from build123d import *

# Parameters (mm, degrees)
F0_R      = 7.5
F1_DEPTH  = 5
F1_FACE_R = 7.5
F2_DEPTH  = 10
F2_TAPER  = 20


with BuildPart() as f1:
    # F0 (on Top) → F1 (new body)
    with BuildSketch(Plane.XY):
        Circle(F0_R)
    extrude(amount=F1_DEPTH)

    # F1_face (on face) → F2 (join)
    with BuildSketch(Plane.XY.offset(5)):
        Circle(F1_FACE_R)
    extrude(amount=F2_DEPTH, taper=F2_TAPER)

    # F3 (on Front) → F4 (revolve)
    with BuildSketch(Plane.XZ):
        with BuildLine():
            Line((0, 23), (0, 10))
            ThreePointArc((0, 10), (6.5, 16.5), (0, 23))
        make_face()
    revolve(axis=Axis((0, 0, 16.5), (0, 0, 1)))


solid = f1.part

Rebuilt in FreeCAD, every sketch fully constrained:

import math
import FreeCAD as App
import Part
import Sketcher
from FreeCAD import Vector

doc = App.newDocument("Part")
body = doc.addObject("PartDesign::Body", "Body")

# Sketch on XY plane
sketch1 = body.newObject("Sketcher::SketchObject", "Sketch")
sketch1.AttachmentSupport = (doc.getObject("XY_Plane"), [""])
sketch1.MapMode = "FlatFace"
sketch1.addGeometry(Part.Circle(Vector(0, 0, 0), Vector(0, 0, 1), 8), False)
sketch1.addConstraint([
    Sketcher.Constraint("Coincident", 0, 3, -1, 1),
    Sketcher.Constraint("Diameter", 0, 15.0),
])
pad1 = body.newObject("PartDesign::Pad", "Pad")
pad1.Profile = sketch1
pad1.Length = 5

# Sketch on XY plane
sketch2 = body.newObject("Sketcher::SketchObject", "Sketch001")
sketch2.AttachmentSupport = (doc.getObject("XY_Plane"), [""])
sketch2.MapMode = "FlatFace"
sketch2.AttachmentOffset = App.Placement(Vector(0, 0, 5), App.Rotation())
sketch2.addGeometry(Part.Circle(Vector(0, 0, 0), Vector(0, 0, 1), 8), False)
sketch2.addConstraint([
    Sketcher.Constraint("Coincident", 0, 3, -1, 1),
    Sketcher.Constraint("Diameter", 0, 15.0),
])
pad2 = body.newObject("PartDesign::Pad", "Pad001")
pad2.Profile = sketch2
pad2.Length = 10
pad2.TaperAngle = -20

# Sketch on XZ plane
sketch3 = body.newObject("Sketcher::SketchObject", "Sketch002")
sketch3.AttachmentSupport = (doc.getObject("XZ_Plane"), [""])
sketch3.MapMode = "FlatFace"
sketch3.addGeometry([
    Part.LineSegment(Vector(0, 23, 0), Vector(0, 10, 0)),
    Part.ArcOfCircle(Part.Circle(Vector(0, 16, 0), Vector(0, 0, 1), 6), math.radians(-90), math.radians(90)),
], False)
sketch3.addConstraint([
    Sketcher.Constraint("Coincident", 0, 1, 1, 2),
    Sketcher.Constraint("Coincident", 1, 1, 0, 2),
    Sketcher.Constraint("Vertical", 0),
    Sketcher.Constraint("PointOnObject", 1, 3, -2),
    Sketcher.Constraint("PointOnObject", 0, 1, -2),
    Sketcher.Constraint("Radius", 1, 6.5),
    Sketcher.Constraint("DistanceY", -1, 1, 0, 1, 23.0),
])
revolution = body.newObject("PartDesign::Revolution", "Revolution")
revolution.Profile = sketch3
revolution.ReferenceAxis = (sketch3, ["V_Axis"])
revolution.Angle = 360

doc.recompute()
